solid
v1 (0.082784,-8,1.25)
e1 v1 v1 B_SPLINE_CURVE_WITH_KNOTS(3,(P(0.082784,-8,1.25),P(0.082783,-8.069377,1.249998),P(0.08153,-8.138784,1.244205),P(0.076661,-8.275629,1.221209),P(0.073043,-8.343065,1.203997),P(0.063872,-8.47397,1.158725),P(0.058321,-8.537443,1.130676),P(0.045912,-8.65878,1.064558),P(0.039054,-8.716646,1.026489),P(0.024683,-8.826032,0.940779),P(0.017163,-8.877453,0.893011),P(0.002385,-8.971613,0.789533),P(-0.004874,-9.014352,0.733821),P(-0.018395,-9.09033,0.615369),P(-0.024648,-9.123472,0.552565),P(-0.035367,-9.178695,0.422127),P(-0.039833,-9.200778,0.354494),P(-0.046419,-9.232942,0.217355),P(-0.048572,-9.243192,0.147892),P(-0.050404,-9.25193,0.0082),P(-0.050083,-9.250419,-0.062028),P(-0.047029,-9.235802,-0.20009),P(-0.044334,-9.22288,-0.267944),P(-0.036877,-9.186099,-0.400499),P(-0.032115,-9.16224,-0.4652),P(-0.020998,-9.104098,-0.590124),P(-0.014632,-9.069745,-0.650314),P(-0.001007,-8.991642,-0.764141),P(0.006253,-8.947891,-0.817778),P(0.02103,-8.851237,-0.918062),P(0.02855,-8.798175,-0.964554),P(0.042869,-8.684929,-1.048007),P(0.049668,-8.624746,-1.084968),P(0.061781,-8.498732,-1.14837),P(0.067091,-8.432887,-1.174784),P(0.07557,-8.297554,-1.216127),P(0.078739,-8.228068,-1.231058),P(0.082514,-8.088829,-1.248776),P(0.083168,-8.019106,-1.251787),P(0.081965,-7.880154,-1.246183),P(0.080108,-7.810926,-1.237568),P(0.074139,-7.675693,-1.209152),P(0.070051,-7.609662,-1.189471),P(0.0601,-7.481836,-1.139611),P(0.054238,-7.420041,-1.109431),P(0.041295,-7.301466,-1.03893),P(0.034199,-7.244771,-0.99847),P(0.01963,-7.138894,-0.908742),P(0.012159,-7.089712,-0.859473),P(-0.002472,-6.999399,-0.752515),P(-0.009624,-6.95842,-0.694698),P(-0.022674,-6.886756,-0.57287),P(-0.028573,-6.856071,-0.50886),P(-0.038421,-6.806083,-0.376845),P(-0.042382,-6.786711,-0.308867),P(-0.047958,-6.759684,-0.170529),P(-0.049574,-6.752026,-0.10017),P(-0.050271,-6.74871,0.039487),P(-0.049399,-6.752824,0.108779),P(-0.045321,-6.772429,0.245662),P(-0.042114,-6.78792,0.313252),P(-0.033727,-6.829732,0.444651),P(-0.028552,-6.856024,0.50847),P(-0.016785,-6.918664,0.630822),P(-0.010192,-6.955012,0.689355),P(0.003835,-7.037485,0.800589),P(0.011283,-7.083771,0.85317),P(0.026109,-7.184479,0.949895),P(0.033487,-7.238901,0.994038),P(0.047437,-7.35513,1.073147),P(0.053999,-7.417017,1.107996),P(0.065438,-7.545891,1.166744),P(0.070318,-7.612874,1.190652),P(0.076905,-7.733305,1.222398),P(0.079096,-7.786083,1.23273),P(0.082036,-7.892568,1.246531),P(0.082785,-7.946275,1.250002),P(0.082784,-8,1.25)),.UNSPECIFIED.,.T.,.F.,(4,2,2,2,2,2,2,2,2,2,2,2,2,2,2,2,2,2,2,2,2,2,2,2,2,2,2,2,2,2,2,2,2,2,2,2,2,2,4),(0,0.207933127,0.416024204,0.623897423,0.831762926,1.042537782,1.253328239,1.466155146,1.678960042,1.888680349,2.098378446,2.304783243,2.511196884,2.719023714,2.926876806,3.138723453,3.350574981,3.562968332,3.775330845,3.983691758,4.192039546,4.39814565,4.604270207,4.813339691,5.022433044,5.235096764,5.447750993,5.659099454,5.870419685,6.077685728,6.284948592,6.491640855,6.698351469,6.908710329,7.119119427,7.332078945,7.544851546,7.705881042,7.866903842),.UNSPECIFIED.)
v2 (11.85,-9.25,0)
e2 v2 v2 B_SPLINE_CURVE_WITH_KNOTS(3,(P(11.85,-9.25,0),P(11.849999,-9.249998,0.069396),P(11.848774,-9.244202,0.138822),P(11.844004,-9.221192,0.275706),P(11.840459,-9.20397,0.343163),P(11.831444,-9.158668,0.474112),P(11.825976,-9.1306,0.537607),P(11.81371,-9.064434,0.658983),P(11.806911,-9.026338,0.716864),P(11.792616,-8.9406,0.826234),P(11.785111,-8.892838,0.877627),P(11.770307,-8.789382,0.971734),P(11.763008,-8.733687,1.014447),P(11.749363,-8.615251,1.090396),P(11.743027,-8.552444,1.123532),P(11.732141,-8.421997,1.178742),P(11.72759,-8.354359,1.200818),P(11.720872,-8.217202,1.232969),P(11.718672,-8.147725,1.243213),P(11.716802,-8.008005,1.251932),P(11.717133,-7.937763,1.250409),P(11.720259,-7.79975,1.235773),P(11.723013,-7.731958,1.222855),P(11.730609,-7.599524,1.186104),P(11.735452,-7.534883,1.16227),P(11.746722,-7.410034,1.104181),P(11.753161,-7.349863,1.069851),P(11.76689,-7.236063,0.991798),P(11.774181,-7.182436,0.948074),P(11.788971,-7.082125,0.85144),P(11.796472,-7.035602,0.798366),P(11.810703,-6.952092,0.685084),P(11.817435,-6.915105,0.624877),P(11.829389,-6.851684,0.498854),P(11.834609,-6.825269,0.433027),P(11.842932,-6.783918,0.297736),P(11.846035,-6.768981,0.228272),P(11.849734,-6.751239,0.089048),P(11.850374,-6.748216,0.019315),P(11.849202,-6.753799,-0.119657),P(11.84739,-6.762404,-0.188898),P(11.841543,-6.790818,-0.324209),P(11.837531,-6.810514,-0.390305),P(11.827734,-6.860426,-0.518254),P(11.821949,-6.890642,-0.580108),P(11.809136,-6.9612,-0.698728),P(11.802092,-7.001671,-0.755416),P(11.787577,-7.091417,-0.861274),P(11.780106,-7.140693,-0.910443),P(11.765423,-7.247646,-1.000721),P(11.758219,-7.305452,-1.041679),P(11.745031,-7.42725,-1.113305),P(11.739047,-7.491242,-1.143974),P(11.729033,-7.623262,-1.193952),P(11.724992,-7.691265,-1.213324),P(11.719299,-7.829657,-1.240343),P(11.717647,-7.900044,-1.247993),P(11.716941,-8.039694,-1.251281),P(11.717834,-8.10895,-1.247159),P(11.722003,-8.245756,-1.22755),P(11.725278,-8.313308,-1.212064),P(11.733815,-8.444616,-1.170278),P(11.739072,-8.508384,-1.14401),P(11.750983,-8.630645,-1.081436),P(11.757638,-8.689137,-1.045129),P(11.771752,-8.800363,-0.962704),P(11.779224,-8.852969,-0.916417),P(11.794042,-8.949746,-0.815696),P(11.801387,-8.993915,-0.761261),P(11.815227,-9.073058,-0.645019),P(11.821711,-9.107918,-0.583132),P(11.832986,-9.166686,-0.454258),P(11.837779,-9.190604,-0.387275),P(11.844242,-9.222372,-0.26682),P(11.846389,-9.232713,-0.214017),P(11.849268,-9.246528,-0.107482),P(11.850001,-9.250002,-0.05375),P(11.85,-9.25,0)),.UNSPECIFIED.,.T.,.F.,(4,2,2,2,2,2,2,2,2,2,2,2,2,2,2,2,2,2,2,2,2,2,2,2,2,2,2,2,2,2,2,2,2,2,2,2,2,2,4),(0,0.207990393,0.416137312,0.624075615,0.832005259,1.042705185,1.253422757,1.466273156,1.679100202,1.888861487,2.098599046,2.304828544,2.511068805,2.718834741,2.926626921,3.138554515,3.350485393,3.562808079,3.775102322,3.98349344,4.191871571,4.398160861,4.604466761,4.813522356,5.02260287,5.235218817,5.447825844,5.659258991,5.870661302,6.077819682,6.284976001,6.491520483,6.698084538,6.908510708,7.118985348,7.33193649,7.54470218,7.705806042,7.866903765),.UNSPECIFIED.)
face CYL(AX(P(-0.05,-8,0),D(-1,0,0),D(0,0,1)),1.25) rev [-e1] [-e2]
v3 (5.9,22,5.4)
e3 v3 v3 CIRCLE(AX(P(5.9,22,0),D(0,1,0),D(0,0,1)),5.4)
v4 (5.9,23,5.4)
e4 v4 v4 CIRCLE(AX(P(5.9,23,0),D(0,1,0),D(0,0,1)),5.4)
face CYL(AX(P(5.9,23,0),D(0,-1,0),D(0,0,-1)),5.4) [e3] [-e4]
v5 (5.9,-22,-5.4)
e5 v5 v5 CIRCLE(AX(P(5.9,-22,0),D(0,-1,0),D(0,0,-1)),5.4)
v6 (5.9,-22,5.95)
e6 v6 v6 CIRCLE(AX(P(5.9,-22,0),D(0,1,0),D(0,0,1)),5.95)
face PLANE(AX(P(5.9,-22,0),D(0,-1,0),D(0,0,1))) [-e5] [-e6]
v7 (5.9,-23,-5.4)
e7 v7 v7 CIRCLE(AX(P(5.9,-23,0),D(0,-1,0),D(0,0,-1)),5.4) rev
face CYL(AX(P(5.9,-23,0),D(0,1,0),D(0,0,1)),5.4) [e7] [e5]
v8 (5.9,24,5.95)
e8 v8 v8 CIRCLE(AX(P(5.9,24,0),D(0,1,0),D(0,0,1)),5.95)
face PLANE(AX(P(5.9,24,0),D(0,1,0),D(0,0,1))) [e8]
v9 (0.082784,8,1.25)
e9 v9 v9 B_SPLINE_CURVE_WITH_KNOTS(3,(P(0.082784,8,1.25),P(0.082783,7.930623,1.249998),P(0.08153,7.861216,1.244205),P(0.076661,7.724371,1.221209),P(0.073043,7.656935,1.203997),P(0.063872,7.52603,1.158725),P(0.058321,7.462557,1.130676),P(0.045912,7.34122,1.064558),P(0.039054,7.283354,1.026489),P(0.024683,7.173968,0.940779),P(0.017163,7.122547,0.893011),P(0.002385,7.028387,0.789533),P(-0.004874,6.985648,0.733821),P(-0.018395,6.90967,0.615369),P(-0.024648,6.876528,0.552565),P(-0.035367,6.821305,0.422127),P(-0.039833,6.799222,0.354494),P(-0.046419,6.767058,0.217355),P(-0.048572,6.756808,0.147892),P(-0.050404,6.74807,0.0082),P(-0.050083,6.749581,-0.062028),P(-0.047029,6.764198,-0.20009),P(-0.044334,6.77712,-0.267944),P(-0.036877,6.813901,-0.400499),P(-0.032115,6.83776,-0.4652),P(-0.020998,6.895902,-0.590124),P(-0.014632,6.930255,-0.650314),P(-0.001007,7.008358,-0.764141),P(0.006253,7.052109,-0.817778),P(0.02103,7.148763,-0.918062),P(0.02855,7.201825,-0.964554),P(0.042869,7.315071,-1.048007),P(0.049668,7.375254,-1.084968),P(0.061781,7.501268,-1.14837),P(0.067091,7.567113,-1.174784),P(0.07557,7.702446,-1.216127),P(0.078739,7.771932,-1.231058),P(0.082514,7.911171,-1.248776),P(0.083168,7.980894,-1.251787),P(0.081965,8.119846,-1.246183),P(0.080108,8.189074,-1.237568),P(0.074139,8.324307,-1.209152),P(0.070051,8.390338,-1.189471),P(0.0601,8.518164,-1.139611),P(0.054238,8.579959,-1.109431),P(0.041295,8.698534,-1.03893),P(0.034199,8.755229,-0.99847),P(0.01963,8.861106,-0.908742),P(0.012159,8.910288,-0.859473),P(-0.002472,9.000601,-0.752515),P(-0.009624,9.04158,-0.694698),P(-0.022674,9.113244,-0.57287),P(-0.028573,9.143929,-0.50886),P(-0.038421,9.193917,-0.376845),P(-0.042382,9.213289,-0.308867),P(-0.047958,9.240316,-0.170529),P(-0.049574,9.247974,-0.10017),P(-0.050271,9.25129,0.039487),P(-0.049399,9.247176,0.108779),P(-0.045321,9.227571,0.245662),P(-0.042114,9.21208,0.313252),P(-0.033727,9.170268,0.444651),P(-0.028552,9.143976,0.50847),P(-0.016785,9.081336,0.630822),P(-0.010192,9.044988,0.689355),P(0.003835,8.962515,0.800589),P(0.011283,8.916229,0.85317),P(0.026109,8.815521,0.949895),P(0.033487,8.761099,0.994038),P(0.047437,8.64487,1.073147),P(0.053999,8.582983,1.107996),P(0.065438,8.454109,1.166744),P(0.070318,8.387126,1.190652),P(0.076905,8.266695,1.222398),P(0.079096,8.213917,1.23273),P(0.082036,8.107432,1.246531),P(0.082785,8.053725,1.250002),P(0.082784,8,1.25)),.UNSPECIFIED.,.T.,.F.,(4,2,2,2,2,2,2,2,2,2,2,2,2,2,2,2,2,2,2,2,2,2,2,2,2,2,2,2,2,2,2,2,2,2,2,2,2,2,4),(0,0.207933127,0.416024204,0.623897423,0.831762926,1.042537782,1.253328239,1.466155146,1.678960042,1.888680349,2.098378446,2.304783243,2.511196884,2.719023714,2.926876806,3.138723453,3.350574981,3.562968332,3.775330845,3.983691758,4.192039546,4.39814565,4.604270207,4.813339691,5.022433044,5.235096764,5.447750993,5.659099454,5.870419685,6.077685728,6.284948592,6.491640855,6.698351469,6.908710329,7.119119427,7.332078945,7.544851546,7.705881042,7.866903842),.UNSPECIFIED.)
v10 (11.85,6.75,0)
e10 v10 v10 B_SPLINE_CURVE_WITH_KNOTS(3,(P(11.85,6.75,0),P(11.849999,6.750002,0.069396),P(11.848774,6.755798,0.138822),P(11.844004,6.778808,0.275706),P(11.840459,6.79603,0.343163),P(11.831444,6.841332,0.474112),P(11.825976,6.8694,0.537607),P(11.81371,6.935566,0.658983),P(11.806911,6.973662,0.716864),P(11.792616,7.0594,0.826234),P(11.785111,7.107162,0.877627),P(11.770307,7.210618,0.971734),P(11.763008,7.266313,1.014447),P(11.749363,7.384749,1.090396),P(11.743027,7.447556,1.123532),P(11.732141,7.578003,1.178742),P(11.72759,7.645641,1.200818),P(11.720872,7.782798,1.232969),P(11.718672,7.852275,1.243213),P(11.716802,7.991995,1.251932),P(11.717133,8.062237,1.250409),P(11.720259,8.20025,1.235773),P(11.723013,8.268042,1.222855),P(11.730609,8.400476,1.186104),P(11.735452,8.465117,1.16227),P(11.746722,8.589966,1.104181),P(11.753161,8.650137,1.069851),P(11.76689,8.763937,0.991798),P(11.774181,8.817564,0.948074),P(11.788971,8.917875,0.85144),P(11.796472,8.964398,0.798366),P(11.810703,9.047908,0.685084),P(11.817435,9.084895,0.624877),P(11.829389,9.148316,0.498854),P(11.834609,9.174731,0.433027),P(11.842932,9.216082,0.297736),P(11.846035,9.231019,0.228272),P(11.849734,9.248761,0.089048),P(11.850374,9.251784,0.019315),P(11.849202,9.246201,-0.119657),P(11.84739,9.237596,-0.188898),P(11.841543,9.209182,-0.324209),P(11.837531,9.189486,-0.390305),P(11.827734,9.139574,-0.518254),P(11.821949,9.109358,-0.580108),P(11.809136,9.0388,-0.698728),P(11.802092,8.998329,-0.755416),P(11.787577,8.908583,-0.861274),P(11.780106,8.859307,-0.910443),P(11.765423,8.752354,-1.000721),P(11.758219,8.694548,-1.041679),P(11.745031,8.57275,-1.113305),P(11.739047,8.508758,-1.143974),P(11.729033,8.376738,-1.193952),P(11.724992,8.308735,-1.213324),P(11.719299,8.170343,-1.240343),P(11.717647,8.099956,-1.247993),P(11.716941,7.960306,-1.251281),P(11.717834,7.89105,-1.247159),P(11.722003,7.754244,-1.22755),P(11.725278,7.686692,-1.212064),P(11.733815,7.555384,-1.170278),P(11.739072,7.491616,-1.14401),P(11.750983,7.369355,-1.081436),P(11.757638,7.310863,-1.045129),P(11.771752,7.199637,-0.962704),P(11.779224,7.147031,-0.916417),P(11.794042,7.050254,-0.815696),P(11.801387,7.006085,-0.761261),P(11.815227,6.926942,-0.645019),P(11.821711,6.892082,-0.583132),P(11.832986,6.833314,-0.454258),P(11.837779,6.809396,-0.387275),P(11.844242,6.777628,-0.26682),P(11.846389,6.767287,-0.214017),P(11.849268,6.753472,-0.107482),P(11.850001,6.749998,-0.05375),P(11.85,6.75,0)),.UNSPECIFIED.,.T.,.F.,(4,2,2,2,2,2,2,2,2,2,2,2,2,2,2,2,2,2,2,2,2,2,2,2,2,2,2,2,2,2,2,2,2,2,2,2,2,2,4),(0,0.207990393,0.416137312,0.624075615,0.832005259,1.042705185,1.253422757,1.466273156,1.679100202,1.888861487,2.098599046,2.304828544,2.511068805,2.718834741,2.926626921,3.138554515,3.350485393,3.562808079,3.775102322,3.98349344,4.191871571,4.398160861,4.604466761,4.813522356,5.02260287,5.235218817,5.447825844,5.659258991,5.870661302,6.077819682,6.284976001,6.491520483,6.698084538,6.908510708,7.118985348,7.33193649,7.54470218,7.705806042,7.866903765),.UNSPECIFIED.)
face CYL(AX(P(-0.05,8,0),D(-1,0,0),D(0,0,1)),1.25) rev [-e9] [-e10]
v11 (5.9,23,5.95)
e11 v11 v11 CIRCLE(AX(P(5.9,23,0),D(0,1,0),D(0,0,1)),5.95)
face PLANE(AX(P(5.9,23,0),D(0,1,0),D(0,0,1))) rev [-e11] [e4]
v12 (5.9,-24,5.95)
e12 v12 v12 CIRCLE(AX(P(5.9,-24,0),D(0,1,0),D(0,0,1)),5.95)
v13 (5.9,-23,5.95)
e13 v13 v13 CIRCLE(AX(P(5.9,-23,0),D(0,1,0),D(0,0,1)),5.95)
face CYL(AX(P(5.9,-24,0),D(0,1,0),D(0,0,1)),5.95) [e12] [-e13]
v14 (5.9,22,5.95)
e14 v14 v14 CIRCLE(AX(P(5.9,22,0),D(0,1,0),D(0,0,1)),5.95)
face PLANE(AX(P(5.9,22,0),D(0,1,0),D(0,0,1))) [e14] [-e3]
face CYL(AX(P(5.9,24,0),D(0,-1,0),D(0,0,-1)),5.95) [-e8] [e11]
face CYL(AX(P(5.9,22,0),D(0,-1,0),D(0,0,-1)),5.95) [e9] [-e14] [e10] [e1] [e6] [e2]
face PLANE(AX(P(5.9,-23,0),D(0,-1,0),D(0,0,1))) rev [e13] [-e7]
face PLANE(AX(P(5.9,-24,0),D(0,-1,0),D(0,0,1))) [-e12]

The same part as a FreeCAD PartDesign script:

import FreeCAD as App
import Part
import Sketcher

doc = App.newDocument("Part")
body = doc.addObject("PartDesign::Body", "Body")

sketch1 = doc.addObject("Sketcher::SketchObject", "Sketch")
body.addObject(sketch1)
sketch1.AttachmentSupport = (doc.XZ_Plane, [""])
sketch1.MapMode = "FlatFace"
sketch1.addGeometry(Part.Circle(App.Vector(6, 0, 0), App.Vector(0, 0, 1), 6), False)
sketch1.addConstraint([
    Sketcher.Constraint("PointOnObject", 0, 3, -1),
    Sketcher.Constraint("Diameter", 0, 11.9),
    Sketcher.Constraint("DistanceX", -1, 1, 0, 3, 5.9),
])
pad1 = doc.addObject("PartDesign::Pad", "Pad")
body.addObject(pad1)
pad1.Profile = sketch1
pad1.Length = 22
pad1.Reversed = True

sketch2 = doc.addObject("Sketcher::SketchObject", "Sketch001")
body.addObject(sketch2)
sketch2.AttachmentSupport = (doc.XZ_Plane, [""])
sketch2.MapMode = "FlatFace"
sketch2.AttachmentOffset = App.Placement(App.Vector(0, 0, -22), App.Rotation())
sketch2.addGeometry(Part.Circle(App.Vector(6, 0, 0), App.Vector(0, 0, 1), 5), False)
sketch2.addConstraint([
    Sketcher.Constraint("PointOnObject", 0, 3, -1),
    Sketcher.Constraint("Diameter", 0, 10.8),
    Sketcher.Constraint("DistanceX", -1, 1, 0, 3, 5.9),
])
pad2 = doc.addObject("PartDesign::Pad", "Pad001")
body.addObject(pad2)
pad2.Profile = sketch2
pad2.Length = 1
pad2.Reversed = True

sketch3 = doc.addObject("Sketcher::SketchObject", "Sketch002")
body.addObject(sketch3)
sketch3.AttachmentSupport = (doc.XZ_Plane, [""])
sketch3.MapMode = "FlatFace"
sketch3.AttachmentOffset = App.Placement(App.Vector(0, 0, -23), App.Rotation())
sketch3.addGeometry(Part.Circle(App.Vector(6, 0, 0), App.Vector(0, 0, 1), 6), False)
sketch3.addConstraint([
    Sketcher.Constraint("PointOnObject", 0, 3, -1),
    Sketcher.Constraint("Diameter", 0, 11.9),
    Sketcher.Constraint("DistanceX", -1, 1, 0, 3, 5.9),
])
pad3 = doc.addObject("PartDesign::Pad", "Pad002")
body.addObject(pad3)
pad3.Profile = sketch3
pad3.Length = 1
pad3.Reversed = True
doc.recompute()

mirrored = doc.addObject("PartDesign::Mirrored", "Mirrored")
body.addObject(mirrored)
mirrored.Originals = [pad1, pad2, pad3]
mirrored.MirrorPlane = (doc.XZ_Plane, [""])
body.Tip = mirrored

sketch4 = doc.addObject("Sketcher::SketchObject", "Sketch003")
body.addObject(sketch4)
sketch4.AttachmentSupport = (doc.YZ_Plane, [""])
sketch4.MapMode = "FlatFace"
sketch4.AttachmentOffset = App.Placement(App.Vector(0, 0, -0.05), App.Rotation())
sketch4.addGeometry([
    Part.Circle(App.Vector(-8, 0, 0), App.Vector(0, 0, 1), 1.2),
    Part.Circle(App.Vector(8, 0, 0), App.Vector(0, 0, 1), 1.2),
], False)
sketch4.addConstraint([
    Sketcher.Constraint("Equal", 0, 1),
    Sketcher.Constraint("Symmetric", 0, 3, 1, 3, -1, 1),
    Sketcher.Constraint("PointOnObject", 0, 3, -1),
    Sketcher.Constraint("Diameter", 0, 2.5),
    Sketcher.Constraint("DistanceX", 0, 3, -1, 1, 8.0),
])
doc.recompute()
hole = doc.addObject("PartDesign::Hole", "Hole")
body.addObject(hole)
hole.Profile = sketch4
hole.ThreadType = "None"
hole.Diameter = 2.5
hole.DepthType = "ThroughAll"
hole.Reversed = True

doc.recompute()
